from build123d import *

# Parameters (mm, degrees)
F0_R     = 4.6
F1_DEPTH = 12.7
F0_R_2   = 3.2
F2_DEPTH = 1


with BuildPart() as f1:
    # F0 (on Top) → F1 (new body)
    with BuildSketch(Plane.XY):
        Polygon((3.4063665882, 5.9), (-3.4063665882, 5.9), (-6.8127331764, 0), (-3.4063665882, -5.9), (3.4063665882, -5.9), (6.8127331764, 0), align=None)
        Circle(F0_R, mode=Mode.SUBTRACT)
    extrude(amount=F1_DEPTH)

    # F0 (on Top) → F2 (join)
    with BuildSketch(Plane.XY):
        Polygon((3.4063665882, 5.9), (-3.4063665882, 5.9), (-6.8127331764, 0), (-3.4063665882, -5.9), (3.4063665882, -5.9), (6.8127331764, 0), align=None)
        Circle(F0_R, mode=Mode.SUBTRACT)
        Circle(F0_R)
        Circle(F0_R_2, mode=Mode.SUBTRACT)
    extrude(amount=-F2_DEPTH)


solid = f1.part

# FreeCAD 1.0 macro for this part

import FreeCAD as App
import Part
import Sketcher
Q = App.Units.Quantity

doc = App.newDocument("Part")
params = doc.addObject("Spreadsheet::Sheet", "Params")
for row, (alias, value) in enumerate([
    ("sketch1_diameter", "9.2 mm"),
    ("pad1_length", "12.7 mm"),
    ("sketch2_diameter", "6.4 mm"),
    ("pad2_length", "1 mm"),
], start=1):
    params.set(f"A{row}", alias)
    params.set(f"B{row}", "=" + value)
    params.setAlias(f"B{row}", alias)

body = doc.addObject("PartDesign::Body", "Body")

# Sketch on XY plane
sketch1 = body.newObject("Sketcher::SketchObject", "Sketch")
sketch1.AttachmentSupport = (doc.getObject("XY_Plane"), [""])
sketch1.MapMode = "FlatFace"
sketch1.addGeometry(Part.LineSegment(App.Vector(3.4, 5.9, 0), App.Vector(-3.4, 5.9, 0)), False)
sketch1.addGeometry(Part.LineSegment(App.Vector(-3.4, 5.9, 0), App.Vector(-6.8, 0, 0)), False)
sketch1.addGeometry(Part.LineSegment(App.Vector(-6.8, 0, 0), App.Vector(-3.4, -5.9, 0)), False)
sketch1.addGeometry(Part.LineSegment(App.Vector(-3.4, -5.9, 0), App.Vector(3.4, -5.9, 0)), False)
sketch1.addGeometry(Part.LineSegment(App.Vector(3.4, -5.9, 0), App.Vector(6.8, 0, 0)), False)
sketch1.addGeometry(Part.LineSegment(App.Vector(6.8, 0, 0), App.Vector(3.4, 5.9, 0)), False)
sketch1.addGeometry(Part.Circle(App.Vector(0, 0, 0), App.Vector(0, 0, 1), 4.6), False)
sketch1.addConstraint(Sketcher.Constraint("Coincident", 0, 2, 1, 1))
sketch1.addConstraint(Sketcher.Constraint("Coincident", 1, 2, 2, 1))
sketch1.addConstraint(Sketcher.Constraint("Coincident", 2, 2, 3, 1))
sketch1.addConstraint(Sketcher.Constraint("Coincident", 3, 2, 4, 1))
sketch1.addConstraint(Sketcher.Constraint("Coincident", 4, 2, 5, 1))
sketch1.addConstraint(Sketcher.Constraint("Coincident", 5, 2, 0, 1))
sketch1.addConstraint(Sketcher.Constraint("Horizontal", 0))
sketch1.addConstraint(Sketcher.Constraint("Horizontal", 3))
sketch1.addConstraint(Sketcher.Constraint("Coincident", 6, 3, -1, 1))
sketch1.addConstraint(Sketcher.Constraint("Symmetric", 0, 2, 3, 2, -1, 1))
sketch1.addConstraint(Sketcher.Constraint("Symmetric", 1, 2, 4, 2, -1, 1))
sketch1.addConstraint(Sketcher.Constraint("PointOnObject", 1, 2, -1))
sketch1.addConstraint(Sketcher.Constraint("Parallel", 2, 5))
sketch1.addConstraint(Sketcher.Constraint("Vertical", 0, 2, 2, 2))
sketch1.addConstraint(Sketcher.Constraint("Diameter", 6, Q("9.2 mm")))
sketch1.addConstraint(Sketcher.Constraint("Angle", 1, Q("-120 deg")))
sketch1.addConstraint(Sketcher.Constraint("DistanceY", -1, 1, 0, 2, Q("5.9 mm")))
sketch1.addConstraint(Sketcher.Constraint("DistanceX", 1, 2, 3, 2, Q("10.2191 mm")))
sketch1.setExpression("Constraints[14]", "Params.sketch1_diameter")
pad1 = body.newObject("PartDesign::Pad", "Pad")
pad1.Profile = sketch1
pad1.setExpression("Length", "Params.pad1_length")

# Sketch on XY plane
sketch2 = body.newObject("Sketcher::SketchObject", "Sketch001")
sketch2.AttachmentSupport = (doc.getObject("XY_Plane"), [""])
sketch2.MapMode = "FlatFace"
sketch2.addGeometry(Part.LineSegment(App.Vector(3.4, 5.9, 0), App.Vector(-3.4, 5.9, 0)), False)
sketch2.addGeometry(Part.LineSegment(App.Vector(-3.4, 5.9, 0), App.Vector(-6.8, 0, 0)), False)
sketch2.addGeometry(Part.LineSegment(App.Vector(-6.8, 0, 0), App.Vector(-3.4, -5.9, 0)), False)
sketch2.addGeometry(Part.LineSegment(App.Vector(-3.4, -5.9, 0), App.Vector(3.4, -5.9, 0)), False)
sketch2.addGeometry(Part.LineSegment(App.Vector(3.4, -5.9, 0), App.Vector(6.8, 0, 0)), False)
sketch2.addGeometry(Part.LineSegment(App.Vector(6.8, 0, 0), App.Vector(3.4, 5.9, 0)), False)
sketch2.addGeometry(Part.Circle(App.Vector(0, 0, 0), App.Vector(0, 0, 1), 3.2), False)
sketch2.addConstraint(Sketcher.Constraint("Coincident", 0, 2, 1, 1))
sketch2.addConstraint(Sketcher.Constraint("Coincident", 1, 2, 2, 1))
sketch2.addConstraint(Sketcher.Constraint("Coincident", 2, 2, 3, 1))
sketch2.addConstraint(Sketcher.Constraint("Coincident", 3, 2, 4, 1))
sketch2.addConstraint(Sketcher.Constraint("Coincident", 4, 2, 5, 1))
sketch2.addConstraint(Sketcher.Constraint("Coincident", 5, 2, 0, 1))
sketch2.addConstraint(Sketcher.Constraint("Horizontal", 0))
sketch2.addConstraint(Sketcher.Constraint("Horizontal", 3))
sketch2.addConstraint(Sketcher.Constraint("Coincident", 6, 3, -1, 1))
sketch2.addConstraint(Sketcher.Constraint("Symmetric", 0, 2, 3, 2, -1, 1))
sketch2.addConstraint(Sketcher.Constraint("Symmetric", 1, 2, 4, 2, -1, 1))
sketch2.addConstraint(Sketcher.Constraint("PointOnObject", 1, 2, -1))
sketch2.addConstraint(Sketcher.Constraint("Parallel", 2, 5))
sketch2.addConstraint(Sketcher.Constraint("Vertical", 0, 2, 2, 2))
sketch2.addConstraint(Sketcher.Constraint("Diameter", 6, Q("6.4 mm")))
sketch2.addConstraint(Sketcher.Constraint("Angle", 1, Q("-120 deg")))
sketch2.addConstraint(Sketcher.Constraint("DistanceY", -1, 1, 0, 2, Q("5.9 mm")))
sketch2.addConstraint(Sketcher.Constraint("DistanceX", 1, 2, 3, 2, Q("10.2191 mm")))
sketch2.setExpression("Constraints[14]", "Params.sketch2_diameter")
pad2 = body.newObject("PartDesign::Pad", "Pad001")
pad2.Profile = sketch2
pad2.setExpression("Length", "Params.pad2_length")
pad2.Reversed = True

doc.recompute()
